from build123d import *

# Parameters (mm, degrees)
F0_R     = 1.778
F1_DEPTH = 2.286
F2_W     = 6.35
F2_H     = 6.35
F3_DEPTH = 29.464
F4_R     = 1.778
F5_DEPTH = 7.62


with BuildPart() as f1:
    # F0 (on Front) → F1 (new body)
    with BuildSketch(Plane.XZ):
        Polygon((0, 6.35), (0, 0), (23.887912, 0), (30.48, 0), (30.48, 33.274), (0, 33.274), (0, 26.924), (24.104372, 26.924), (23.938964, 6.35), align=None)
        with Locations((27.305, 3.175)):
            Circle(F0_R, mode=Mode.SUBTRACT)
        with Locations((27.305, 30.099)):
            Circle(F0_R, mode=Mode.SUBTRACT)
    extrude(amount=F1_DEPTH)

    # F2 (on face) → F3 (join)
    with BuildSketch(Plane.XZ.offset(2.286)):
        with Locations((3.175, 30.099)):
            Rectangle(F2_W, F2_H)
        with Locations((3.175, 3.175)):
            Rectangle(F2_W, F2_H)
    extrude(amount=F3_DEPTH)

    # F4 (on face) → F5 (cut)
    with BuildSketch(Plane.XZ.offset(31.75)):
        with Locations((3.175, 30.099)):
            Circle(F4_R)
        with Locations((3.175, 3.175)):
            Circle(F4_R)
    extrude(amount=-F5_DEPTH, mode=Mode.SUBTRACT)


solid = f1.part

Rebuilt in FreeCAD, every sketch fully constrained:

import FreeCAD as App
import Part
import Sketcher
from FreeCAD import Vector
Q = App.Units.Quantity


def add_polygon(sketch, points):
    """Adds a closed chain of lines whose ends are joined by coincident constraints."""
    first, n = sketch.GeometryCount, len(points)
    for a, b in zip(points, points[1:] + points[:1]):
        sketch.addGeometry(Part.LineSegment(App.Vector(*a, 0), App.Vector(*b, 0)), False)
    for i in range(n):
        sketch.addConstraint(Sketcher.Constraint("Coincident", first + i, 2, first + (i + 1) % n, 1))

doc = App.newDocument("Part")
params = doc.addObject("Spreadsheet::Sheet", "Params")
for row, (alias, value) in enumerate([
    ("sketch1_diameter", "0.14 in"),
    ("sketch1_width", "1.2 in"),
    ("sketch1_height", "0.25 in"),
    ("sketch1_height2", "1.31 in"),
    ("pad1_length", "0.09 in"),
    ("sketch2_width", "0.25 in"),
    ("pad2_length", "1.16 in"),
    ("sketch3_diameter", "0.14 in"),
    ("pocket1_length", "0.3 in"),
], start=1):
    params.set(f"A{row}", alias)
    params.set(f"B{row}", "=" + value)
    params.setAlias(f"B{row}", alias)

body = doc.addObject("PartDesign::Body", "Body")

sketch1 = doc.addObject("Sketcher::SketchObject", "Sketch")
body.addObject(sketch1)
sketch1.AttachmentSupport = (doc.XZ_Plane, [""])
sketch1.MapMode = "FlatFace"
add_polygon(sketch1, [(0, 6.3), (0, 0), (30.5, 0), (30.5, 33.3), (0, 33.3), (0, 26.9), (24.1, 26.9), (23.9, 6.3)])
sketch1.addGeometry(Part.Circle(Vector(27.3, 3.2, 0), Vector(0, 0, 1), 1.8), False)
sketch1.addGeometry(Part.Circle(Vector(27.3, 30.1, 0), Vector(0, 0, 1), 1.8), False)
sketch1.addConstraint(Sketcher.Constraint("Vertical", 0))
sketch1.addConstraint(Sketcher.Constraint("Horizontal", 1))
sketch1.addConstraint(Sketcher.Constraint("Vertical", 2))
sketch1.addConstraint(Sketcher.Constraint("Horizontal", 3))
sketch1.addConstraint(Sketcher.Constraint("Vertical", 4))
sketch1.addConstraint(Sketcher.Constraint("Horizontal", 5))
sketch1.addConstraint(Sketcher.Constraint("Horizontal", 7))
sketch1.addConstraint(Sketcher.Constraint("Coincident", 0, 2, -1, 1))
sketch1.addConstraint(Sketcher.Constraint("Equal", 8, 9))
sketch1.addConstraint(Sketcher.Constraint("PointOnObject", 3, 2, -2))
sketch1.addConstraint(Sketcher.Constraint("Vertical", 8, 3, 9, 3))
sketch1.addConstraint(Sketcher.Constraint("Equal", 0, 4))
sketch1.addConstraint(Sketcher.Constraint("Diameter", 8, Q("0.14 in")))
sketch1.addConstraint(Sketcher.Constraint("DistanceX", 1, 1, 1, 2, Q("1.2 in")))
sketch1.addConstraint(Sketcher.Constraint("DistanceY", 0, 2, 0, 1, Q("0.25 in")))
sketch1.addConstraint(Sketcher.Constraint("DistanceY", 2, 1, 2, 2, Q("1.31 in")))
sketch1.addConstraint(Sketcher.Constraint("DistanceY", 8, 3, 9, 3, Q("1.06 in")))
sketch1.addConstraint(Sketcher.Constraint("DistanceX", -1, 1, 8, 3, Q("1.075 in")))
sketch1.addConstraint(Sketcher.Constraint("DistanceY", -1, 1, 8, 3, Q("0.125 in")))
sketch1.addConstraint(Sketcher.Constraint("DistanceX", 5, 1, 5, 2, 24.104372))
sketch1.addConstraint(Sketcher.Constraint("DistanceX", 7, 2, 7, 1, 23.938964))
sketch1.setExpression("Constraints[20]", "Params.sketch1_diameter")
sketch1.setExpression("Constraints[21]", "Params.sketch1_width")
sketch1.setExpression("Constraints[22]", "Params.sketch1_height")
sketch1.setExpression("Constraints[23]", "Params.sketch1_height2")
pad1 = doc.addObject("PartDesign::Pad", "Pad")
body.addObject(pad1)
pad1.Profile = sketch1
pad1.setExpression("Length", "Params.pad1_length")

sketch2 = doc.addObject("Sketcher::SketchObject", "Sketch001")
body.addObject(sketch2)
sketch2.AttachmentSupport = (doc.XZ_Plane, [""])
sketch2.MapMode = "FlatFace"
sketch2.AttachmentOffset = App.Placement(Vector(0, 0, 0.09 * 25.4), App.Rotation())
add_polygon(sketch2, [(0, 33), (0, 27), (6, 27), (6, 33)])
add_polygon(sketch2, [(0, 6), (0, 0), (6, 0), (6, 6)])
sketch2.addConstraint(Sketcher.Constraint("Vertical", 0))
sketch2.addConstraint(Sketcher.Constraint("Horizontal", 1))
sketch2.addConstraint(Sketcher.Constraint("Vertical", 2))
sketch2.addConstraint(Sketcher.Constraint("Horizontal", 3))
sketch2.addConstraint(Sketcher.Constraint("Vertical", 4))
sketch2.addConstraint(Sketcher.Constraint("Horizontal", 5))
sketch2.addConstraint(Sketcher.Constraint("Vertical", 6))
sketch2.addConstraint(Sketcher.Constraint("Horizontal", 7))
sketch2.addConstraint(Sketcher.Constraint("Coincident", 4, 2, -1, 1))
sketch2.addConstraint(Sketcher.Constraint("PointOnObject", 0, 2, -2))
sketch2.addConstraint(Sketcher.Constraint("Vertical", 2, 2, 5, 2))
sketch2.addConstraint(Sketcher.Constraint("Equal", 7, 0))
sketch2.addConstraint(Sketcher.Constraint("Equal", 2, 4))
sketch2.addConstraint(Sketcher.Constraint("DistanceX", 1, 1, 1, 2, Q("0.25 in")))
sketch2.addConstraint(Sketcher.Constraint("DistanceY", -1, 1, 0, 2, Q("1.06 in")))
sketch2.setExpression("Constraints[21]", "Params.sketch2_width")
pad2 = doc.addObject("PartDesign::Pad", "Pad001")
body.addObject(pad2)
pad2.Profile = sketch2
pad2.setExpression("Length", "Params.pad2_length")

sketch3 = doc.addObject("Sketcher::SketchObject", "Sketch002")
body.addObject(sketch3)
sketch3.AttachmentSupport = (doc.XZ_Plane, [""])
sketch3.MapMode = "FlatFace"
sketch3.AttachmentOffset = App.Placement(Vector(0, 0, 1.25 * 25.4), App.Rotation())
sketch3.addGeometry(Part.Circle(Vector(3.2, 30.1, 0), Vector(0, 0, 1), 1.8), False)
sketch3.addGeometry(Part.Circle(Vector(3.2, 3.2, 0), Vector(0, 0, 1), 1.8), False)
sketch3.addConstraint(Sketcher.Constraint("Equal", 0, 1))
sketch3.addConstraint(Sketcher.Constraint("Vertical", 0, 3, 1, 3))
sketch3.addConstraint(Sketcher.Constraint("Diameter", 0, Q("0.14 in")))
sketch3.addConstraint(Sketcher.Constraint("DistanceY", 1, 3, 0, 3, Q("1.06 in")))
sketch3.addConstraint(Sketcher.Constraint("DistanceX", -1, 1, 0, 3, Q("0.125 in")))
sketch3.addConstraint(Sketcher.Constraint("DistanceY", -1, 1, 0, 3, Q("1.185 in")))
sketch3.setExpression("Constraints[2]", "Params.sketch3_diameter")
pocket1 = doc.addObject("PartDesign::Pocket", "Pocket")
body.addObject(pocket1)
pocket1.Profile = sketch3
pocket1.setExpression("Length", "Params.pocket1_length")

doc.recompute()
